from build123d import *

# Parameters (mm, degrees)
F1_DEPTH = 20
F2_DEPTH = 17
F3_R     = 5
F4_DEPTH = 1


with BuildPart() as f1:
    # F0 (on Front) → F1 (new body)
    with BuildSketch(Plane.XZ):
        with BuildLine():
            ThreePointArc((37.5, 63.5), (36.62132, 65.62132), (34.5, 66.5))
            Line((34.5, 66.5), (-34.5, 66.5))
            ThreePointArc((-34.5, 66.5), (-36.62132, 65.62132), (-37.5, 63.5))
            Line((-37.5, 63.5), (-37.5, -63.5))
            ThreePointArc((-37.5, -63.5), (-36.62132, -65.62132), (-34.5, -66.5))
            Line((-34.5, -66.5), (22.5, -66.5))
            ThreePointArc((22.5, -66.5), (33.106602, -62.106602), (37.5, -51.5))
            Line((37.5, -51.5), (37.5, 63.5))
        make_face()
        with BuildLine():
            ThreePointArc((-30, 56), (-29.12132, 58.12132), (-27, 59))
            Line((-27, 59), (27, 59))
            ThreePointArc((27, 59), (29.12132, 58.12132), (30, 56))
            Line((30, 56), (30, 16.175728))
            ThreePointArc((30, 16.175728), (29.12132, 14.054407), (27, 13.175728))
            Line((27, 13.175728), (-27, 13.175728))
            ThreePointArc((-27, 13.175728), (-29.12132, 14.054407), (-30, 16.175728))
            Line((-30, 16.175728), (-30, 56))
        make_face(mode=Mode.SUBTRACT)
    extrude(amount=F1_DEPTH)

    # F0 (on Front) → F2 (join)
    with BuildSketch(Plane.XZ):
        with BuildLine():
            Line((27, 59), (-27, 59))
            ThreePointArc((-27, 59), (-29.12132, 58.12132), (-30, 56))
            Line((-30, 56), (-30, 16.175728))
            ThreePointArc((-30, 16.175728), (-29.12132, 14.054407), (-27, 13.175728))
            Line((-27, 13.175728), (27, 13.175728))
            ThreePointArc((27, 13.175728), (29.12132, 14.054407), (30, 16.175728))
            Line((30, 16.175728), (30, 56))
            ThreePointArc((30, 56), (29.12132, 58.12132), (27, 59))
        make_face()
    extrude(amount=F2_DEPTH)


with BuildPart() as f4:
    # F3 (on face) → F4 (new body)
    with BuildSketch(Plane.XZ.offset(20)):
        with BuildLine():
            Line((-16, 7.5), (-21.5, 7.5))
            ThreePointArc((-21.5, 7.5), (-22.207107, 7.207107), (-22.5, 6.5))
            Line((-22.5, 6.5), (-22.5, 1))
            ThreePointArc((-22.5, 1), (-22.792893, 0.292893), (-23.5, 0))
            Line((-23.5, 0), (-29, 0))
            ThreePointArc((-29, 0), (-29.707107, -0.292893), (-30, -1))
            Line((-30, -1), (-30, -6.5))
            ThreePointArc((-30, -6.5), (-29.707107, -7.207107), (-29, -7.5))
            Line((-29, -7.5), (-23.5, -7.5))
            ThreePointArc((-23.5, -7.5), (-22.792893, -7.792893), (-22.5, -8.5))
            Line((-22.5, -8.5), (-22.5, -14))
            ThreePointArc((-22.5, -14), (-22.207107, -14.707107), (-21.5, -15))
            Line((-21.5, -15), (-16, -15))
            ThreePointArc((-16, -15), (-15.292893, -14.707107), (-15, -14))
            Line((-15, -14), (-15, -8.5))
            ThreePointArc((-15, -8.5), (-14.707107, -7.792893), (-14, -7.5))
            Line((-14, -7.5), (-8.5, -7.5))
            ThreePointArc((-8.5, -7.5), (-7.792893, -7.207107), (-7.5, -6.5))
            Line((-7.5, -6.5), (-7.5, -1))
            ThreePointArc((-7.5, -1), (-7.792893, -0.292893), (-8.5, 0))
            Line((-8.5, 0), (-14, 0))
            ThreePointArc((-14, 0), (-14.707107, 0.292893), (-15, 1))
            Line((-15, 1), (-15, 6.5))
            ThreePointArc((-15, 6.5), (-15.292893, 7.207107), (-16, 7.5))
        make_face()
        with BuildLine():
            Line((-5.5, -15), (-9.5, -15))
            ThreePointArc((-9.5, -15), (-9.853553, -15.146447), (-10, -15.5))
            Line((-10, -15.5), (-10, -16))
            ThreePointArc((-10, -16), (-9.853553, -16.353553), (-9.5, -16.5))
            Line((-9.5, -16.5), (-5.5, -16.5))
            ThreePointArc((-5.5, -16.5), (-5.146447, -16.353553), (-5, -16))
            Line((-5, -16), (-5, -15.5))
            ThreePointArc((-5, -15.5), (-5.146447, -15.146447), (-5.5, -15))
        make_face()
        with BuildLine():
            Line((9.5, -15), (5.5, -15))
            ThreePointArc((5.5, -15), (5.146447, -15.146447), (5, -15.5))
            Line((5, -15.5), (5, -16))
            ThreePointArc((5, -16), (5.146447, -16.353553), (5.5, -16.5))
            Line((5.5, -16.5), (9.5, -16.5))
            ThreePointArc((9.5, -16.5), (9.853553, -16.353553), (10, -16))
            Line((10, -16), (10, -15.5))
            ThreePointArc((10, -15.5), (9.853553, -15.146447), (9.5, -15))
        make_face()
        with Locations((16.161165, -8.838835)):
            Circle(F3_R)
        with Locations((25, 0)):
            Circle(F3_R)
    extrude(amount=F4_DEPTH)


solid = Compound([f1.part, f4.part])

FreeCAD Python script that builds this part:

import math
import FreeCAD as App
import Part
import Sketcher

V = App.Vector
Q = App.Units.Quantity

doc = App.newDocument("Part")
params = doc.addObject("Spreadsheet::Sheet", "Params")
for row, (alias, value) in enumerate([
    ("sketch1_radius", "3.000001 mm"),
    ("sketch1_radius2", "14.999999 mm"),
    ("sketch1_width", "69 mm"),
    ("sketch1_width2", "54 mm"),
    ("sketch1_height", "127 mm"),
    ("pad1_length", "20 mm"),
    ("sketch2_radius", "3.000001 mm"),
    ("sketch2_width", "54 mm"),
    ("pad2_length", "17 mm"),
    ("sketch3_diameter", "10 mm"),
    ("sketch3_radius", "0.999999 mm"),
    ("sketch3_radius2", "0.500001 mm"),
    ("sketch3_width", "4 mm"),
    ("sketch3_width2", "5.5 mm"),
    ("pad3_length", "1 mm"),
], start=1):
    params.set(f"A{row}", alias)
    params.set(f"B{row}", "=" + value)
    params.setAlias(f"B{row}", alias)

body = doc.addObject("PartDesign::Body", "Body")

# Sketch on XZ plane
sketch1 = doc.addObject("Sketcher::SketchObject", "Sketch")
body.addObject(sketch1)
sketch1.AttachmentSupport = (doc.XZ_Plane, [""])
sketch1.MapMode = "FlatFace"
sketch1.addGeometry([
    Part.ArcOfCircle(Part.Circle(V(34.5, 63.5, 0), V(0, 0, 1), 3), math.radians(0), math.radians(90)),  # 0
    Part.LineSegment(V(34.5, 66.5, 0), V(-34.5, 66.5, 0)),  # 1
    Part.ArcOfCircle(Part.Circle(V(-34.5, 63.5, 0), V(0, 0, 1), 3), math.radians(90), math.radians(180)),  # 2
    Part.LineSegment(V(-37.5, 63.5, 0), V(-37.5, -63.5, 0)),  # 3
    Part.ArcOfCircle(Part.Circle(V(-34.5, -63.5, 0), V(0, 0, 1), 3), math.radians(-180), math.radians(-90)),  # 4
    Part.LineSegment(V(-34.5, -66.5, 0), V(22.5, -66.5, 0)),  # 5
    Part.ArcOfCircle(Part.Circle(V(22.5, -51.5, 0), V(0, 0, 1), 15), math.radians(-90), math.radians(0)),  # 6
    Part.LineSegment(V(37.5, -51.5, 0), V(37.5, 63.5, 0)),  # 7
    Part.LineSegment(V(-30, 16.2, 0), V(-30, 56, 0)),  # 8
    Part.ArcOfCircle(Part.Circle(V(-27, 56, 0), V(0, 0, 1), 3), math.radians(90), math.radians(180)),  # 9
    Part.LineSegment(V(-27, 59, 0), V(27, 59, 0)),  # 10
    Part.ArcOfCircle(Part.Circle(V(27, 56, 0), V(0, 0, 1), 3), math.radians(0), math.radians(90)),  # 11
    Part.LineSegment(V(30, 56, 0), V(30, 16.2, 0)),  # 12
    Part.ArcOfCircle(Part.Circle(V(27, 16.2, 0), V(0, 0, 1), 3), math.radians(-90), math.radians(0)),  # 13
    Part.LineSegment(V(27, 13.2, 0), V(-27, 13.2, 0)),  # 14
    Part.ArcOfCircle(Part.Circle(V(-27, 16.2, 0), V(0, 0, 1), 3), math.radians(180), math.radians(270)),  # 15
], False)
sketch1.addConstraint([
    Sketcher.Constraint("Tangent", 0, 2, 1, 1),
    Sketcher.Constraint("Tangent", 1, 2, 2, 1),
    Sketcher.Constraint("Tangent", 2, 2, 3, 1),
    Sketcher.Constraint("Tangent", 3, 2, 4, 1),
    Sketcher.Constraint("Tangent", 4, 2, 5, 1),
    Sketcher.Constraint("Tangent", 5, 2, 6, 1),
    Sketcher.Constraint("Tangent", 6, 2, 7, 1),
    Sketcher.Constraint("Tangent", 7, 2, 0, 1),
    Sketcher.Constraint("Tangent", 8, 2, 9, 2),
    Sketcher.Constraint("Tangent", 9, 1, 10, 1),
    Sketcher.Constraint("Tangent", 10, 2, 11, 2),
    Sketcher.Constraint("Tangent", 11, 1, 12, 1),
    Sketcher.Constraint("Tangent", 12, 2, 13, 2),
    Sketcher.Constraint("Tangent", 13, 1, 14, 1),
    Sketcher.Constraint("Tangent", 14, 2, 15, 2),
    Sketcher.Constraint("Tangent", 15, 1, 8, 1),
    Sketcher.Constraint("Horizontal", 1),
    Sketcher.Constraint("Vertical", 3),
    Sketcher.Constraint("Horizontal", 5),
    Sketcher.Constraint("Vertical", 7),
    Sketcher.Constraint("Vertical", 8),
    Sketcher.Constraint("Horizontal", 10),
    Sketcher.Constraint("Vertical", 12),
    Sketcher.Constraint("Horizontal", 14),
    Sketcher.Constraint("Equal", 0, 2),
    Sketcher.Constraint("Equal", 2, 4),
    Sketcher.Constraint("Equal", 4, 9),
    Sketcher.Constraint("Equal", 9, 11),
    Sketcher.Constraint("Equal", 11, 13),
    Sketcher.Constraint("Equal", 13, 15),
    Sketcher.Constraint("Symmetric", 0, 3, 4, 3, -1, 1),
    Sketcher.Constraint("Radius", 0, Q("3.000001 mm")),
    Sketcher.Constraint("Radius", 6, Q("14.999999 mm")),
    Sketcher.Constraint("DistanceX", 1, 2, 1, 1, Q("69 mm")),
    Sketcher.Constraint("DistanceX", 10, 1, 10, 2, Q("54 mm")),
    Sketcher.Constraint("DistanceY", 3, 2, 3, 1, Q("127 mm")),
    Sketcher.Constraint("DistanceX", 9, 3, -1, 1, Q("26.999999 mm")),
    Sketcher.Constraint("DistanceY", -1, 1, 9, 3, Q("55.999999 mm")),
    Sketcher.Constraint("DistanceY", 8, 1, 8, 2, Q("39.824272 mm")),
])
sketch1.setExpression("Constraints[31]", "Params.sketch1_radius")
sketch1.setExpression("Constraints[32]", "Params.sketch1_radius2")
sketch1.setExpression("Constraints[33]", "Params.sketch1_width")
sketch1.setExpression("Constraints[34]", "Params.sketch1_width2")
sketch1.setExpression("Constraints[35]", "Params.sketch1_height")
pad1 = doc.addObject("PartDesign::Pad", "Pad")
body.addObject(pad1)
pad1.Profile = sketch1
pad1.setExpression("Length", "Params.pad1_length")

# Sketch on XZ plane
sketch2 = doc.addObject("Sketcher::SketchObject", "Sketch001")
body.addObject(sketch2)
sketch2.AttachmentSupport = (doc.XZ_Plane, [""])
sketch2.MapMode = "FlatFace"
sketch2.addGeometry([
    Part.LineSegment(V(27, 59, 0), V(-27, 59, 0)),  # 0
    Part.ArcOfCircle(Part.Circle(V(-27, 56, 0), V(0, 0, 1), 3), math.radians(90), math.radians(180)),  # 1
    Part.LineSegment(V(-30, 56, 0), V(-30, 16.2, 0)),  # 2
    Part.ArcOfCircle(Part.Circle(V(-27, 16.2, 0), V(0, 0, 1), 3), math.radians(180), math.radians(270)),  # 3
    Part.LineSegment(V(-27, 13.2, 0), V(27, 13.2, 0)),  # 4
    Part.ArcOfCircle(Part.Circle(V(27, 16.2, 0), V(0, 0, 1), 3), math.radians(-90), math.radians(0)),  # 5
    Part.LineSegment(V(30, 16.2, 0), V(30, 56, 0)),  # 6
    Part.ArcOfCircle(Part.Circle(V(27, 56, 0), V(0, 0, 1), 3), math.radians(0), math.radians(90)),  # 7
], False)
sketch2.addConstraint([
    Sketcher.Constraint("Tangent", 0, 2, 1, 1),
    Sketcher.Constraint("Tangent", 1, 2, 2, 1),
    Sketcher.Constraint("Tangent", 2, 2, 3, 1),
    Sketcher.Constraint("Tangent", 3, 2, 4, 1),
    Sketcher.Constraint("Tangent", 4, 2, 5, 1),
    Sketcher.Constraint("Tangent", 5, 2, 6, 1),
    Sketcher.Constraint("Tangent", 6, 2, 7, 1),
    Sketcher.Constraint("Tangent", 7, 2, 0, 1),
    Sketcher.Constraint("Horizontal", 0),
    Sketcher.Constraint("Vertical", 2),
    Sketcher.Constraint("Horizontal", 4),
    Sketcher.Constraint("Vertical", 6),
    Sketcher.Constraint("Equal", 1, 3),
    Sketcher.Constraint("Equal", 3, 5),
    Sketcher.Constraint("Equal", 5, 7),
    Sketcher.Constraint("Radius", 1, Q("3.000001 mm")),
    Sketcher.Constraint("DistanceX", 0, 2, 0, 1, Q("54 mm")),
    Sketcher.Constraint("DistanceX", 1, 3, -1, 1, Q("26.999999 mm")),
    Sketcher.Constraint("DistanceY", -1, 1, 1, 3, Q("55.999999 mm")),
    Sketcher.Constraint("DistanceY", 2, 2, 2, 1, Q("39.824272 mm")),
])
sketch2.setExpression("Constraints[15]", "Params.sketch2_radius")
sketch2.setExpression("Constraints[16]", "Params.sketch2_width")
pad2 = doc.addObject("PartDesign::Pad", "Pad001")
body.addObject(pad2)
pad2.Profile = sketch2
pad2.setExpression("Length", "Params.pad2_length")
body2 = doc.addObject("PartDesign::Body", "Body001")
body2.AllowCompound = True

# Sketch on XZ plane
sketch3 = doc.addObject("Sketcher::SketchObject", "Sketch002")
body2.addObject(sketch3)
sketch3.AttachmentSupport = (doc.getObject("XZ_Plane001"), [""])
sketch3.MapMode = "FlatFace"
sketch3.AttachmentOffset = App.Placement(V(0, 0, 20), App.Rotation())
sketch3.addGeometry([
    Part.LineSegment(V(-16, 7.5, 0), V(-21.5, 7.5, 0)),  # 0
    Part.ArcOfCircle(Part.Circle(V(-21.5, 6.5, 0), V(0, 0, 1), 1), math.radians(90), math.radians(180)),  # 1
    Part.LineSegment(V(-22.5, 6.5, 0), V(-22.5, 1, 0)),  # 2
    Part.ArcOfCircle(Part.Circle(V(-23.5, 1, 0), V(0, 0, 1), 1), math.radians(-90), math.radians(0)),  # 3
    Part.LineSegment(V(-23.5, 0, 0), V(-29, 0, 0)),  # 4
    Part.ArcOfCircle(Part.Circle(V(-29, -1, 0), V(0, 0, 1), 1), math.radians(90), math.radians(180)),  # 5
    Part.LineSegment(V(-30, -1, 0), V(-30, -6.5, 0)),  # 6
    Part.ArcOfCircle(Part.Circle(V(-29, -6.5, 0), V(0, 0, 1), 1), math.radians(180), math.radians(270)),  # 7
    Part.LineSegment(V(-29, -7.5, 0), V(-23.5, -7.5, 0)),  # 8
    Part.ArcOfCircle(Part.Circle(V(-23.5, -8.5, 0), V(0, 0, 1), 1), math.radians(0), math.radians(90)),  # 9
    Part.LineSegment(V(-22.5, -8.5, 0), V(-22.5, -14, 0)),  # 10
    Part.ArcOfCircle(Part.Circle(V(-21.5, -14, 0), V(0, 0, 1), 1), math.radians(180), math.radians(270)),  # 11
    Part.LineSegment(V(-21.5, -15, 0), V(-16, -15, 0)),  # 12
    Part.ArcOfCircle(Part.Circle(V(-16, -14, 0), V(0, 0, 1), 1), math.radians(-90), math.radians(0)),  # 13
    Part.LineSegment(V(-15, -14, 0), V(-15, -8.5, 0)),  # 14
    Part.ArcOfCircle(Part.Circle(V(-14, -8.5, 0), V(0, 0, 1), 1), math.radians(90), math.radians(180)),  # 15
    Part.LineSegment(V(-14, -7.5, 0), V(-8.5, -7.5, 0)),  # 16
    Part.ArcOfCircle(Part.Circle(V(-8.5, -6.5, 0), V(0, 0, 1), 1), math.radians(-90), math.radians(0)),  # 17
    Part.LineSegment(V(-7.5, -6.5, 0), V(-7.5, -1, 0)),  # 18
    Part.ArcOfCircle(Part.Circle(V(-8.5, -1, 0), V(0, 0, 1), 1), math.radians(0), math.radians(90)),  # 19
    Part.LineSegment(V(-8.5, 0, 0), V(-14, 0, 0)),  # 20
    Part.ArcOfCircle(Part.Circle(V(-14, 1, 0), V(0, 0, 1), 1), math.radians(180), math.radians(270)),  # 21
    Part.LineSegment(V(-15, 1, 0), V(-15, 6.5, 0)),  # 22
    Part.ArcOfCircle(Part.Circle(V(-16, 6.5, 0), V(0, 0, 1), 1), math.radians(0), math.radians(90)),  # 23
    Part.LineSegment(V(-5.5, -15, 0), V(-9.5, -15, 0)),  # 24
    Part.ArcOfCircle(Part.Circle(V(-9.5, -15.5, 0), V(0, 0, 1), 0.5), math.radians(90), math.radians(180)),  # 25
    Part.LineSegment(V(-10, -15.5, 0), V(-10, -16, 0)),  # 26
    Part.ArcOfCircle(Part.Circle(V(-9.5, -16, 0), V(0, 0, 1), 0.5), math.radians(-180), math.radians(-90)),  # 27
    Part.LineSegment(V(-9.5, -16.5, 0), V(-5.5, -16.5, 0)),  # 28
    Part.ArcOfCircle(Part.Circle(V(-5.5, -16, 0), V(0, 0, 1), 0.5), math.radians(-90), math.radians(0)),  # 29
    Part.LineSegment(V(-5, -16, 0), V(-5, -15.5, 0)),  # 30
    Part.ArcOfCircle(Part.Circle(V(-5.5, -15.5, 0), V(0, 0, 1), 0.5), math.radians(0), math.radians(90)),  # 31
    Part.LineSegment(V(9.5, -15, 0), V(5.5, -15, 0)),  # 32
    Part.ArcOfCircle(Part.Circle(V(5.5, -15.5, 0), V(0, 0, 1), 0.5), math.radians(90), math.radians(180)),  # 33
    Part.LineSegment(V(5, -15.5, 0), V(5, -16, 0)),  # 34
    Part.ArcOfCircle(Part.Circle(V(5.5, -16, 0), V(0, 0, 1), 0.5), math.radians(-180), math.radians(-90)),  # 35
    Part.LineSegment(V(5.5, -16.5, 0), V(9.5, -16.5, 0)),  # 36
    Part.ArcOfCircle(Part.Circle(V(9.5, -16, 0), V(0, 0, 1), 0.5), math.radians(-90), math.radians(0)),  # 37
    Part.LineSegment(V(10, -16, 0), V(10, -15.5, 0)),  # 38
    Part.ArcOfCircle(Part.Circle(V(9.5, -15.5, 0), V(0, 0, 1), 0.5), math.radians(0), math.radians(90)),  # 39
    Part.Circle(V(16.2, -8.8, 0), V(0, 0, 1), 5),  # 40
    Part.Circle(V(25, 0, 0), V(0, 0, 1), 5),  # 41
], False)
sketch3.addConstraint([
    Sketcher.Constraint("Tangent", 0, 2, 1, 1),
    Sketcher.Constraint("Tangent", 1, 2, 2, 1),
    Sketcher.Constraint("Tangent", 2, 2, 3, 2),
    Sketcher.Constraint("Tangent", 3, 1, 4, 1),
    Sketcher.Constraint("Tangent", 4, 2, 5, 1),
    Sketcher.Constraint("Tangent", 5, 2, 6, 1),
    Sketcher.Constraint("Tangent", 6, 2, 7, 1),
    Sketcher.Constraint("Tangent", 7, 2, 8, 1),
    Sketcher.Constraint("Tangent", 8, 2, 9, 2),
    Sketcher.Constraint("Tangent", 9, 1, 10, 1),
    Sketcher.Constraint("Tangent", 10, 2, 11, 1),
    Sketcher.Constraint("Tangent", 11, 2, 12, 1),
    Sketcher.Constraint("Tangent", 12, 2, 13, 1),
    Sketcher.Constraint("Tangent", 13, 2, 14, 1),
    Sketcher.Constraint("Tangent", 14, 2, 15, 2),
    Sketcher.Constraint("Tangent", 15, 1, 16, 1),
    Sketcher.Constraint("Tangent", 16, 2, 17, 1),
    Sketcher.Constraint("Tangent", 17, 2, 18, 1),
    Sketcher.Constraint("Tangent", 18, 2, 19, 1),
    Sketcher.Constraint("Tangent", 19, 2, 20, 1),
    Sketcher.Constraint("Tangent", 20, 2, 21, 2),
    Sketcher.Constraint("Tangent", 21, 1, 22, 1),
    Sketcher.Constraint("Tangent", 22, 2, 23, 1),
    Sketcher.Constraint("Tangent", 23, 2, 0, 1),
    Sketcher.Constraint("Coincident", 24, 2, 25, 1),
    Sketcher.Constraint("Coincident", 25, 2, 26, 1),
    Sketcher.Constraint("Coincident", 26, 2, 27, 1),
    Sketcher.Constraint("Coincident", 27, 2, 28, 1),
    Sketcher.Constraint("Coincident", 28, 2, 29, 1),
    Sketcher.Constraint("Coincident", 29, 2, 30, 1),
    Sketcher.Constraint("Coincident", 30, 2, 31, 1),
    Sketcher.Constraint("Coincident", 31, 2, 24, 1),
    Sketcher.Constraint("Coincident", 32, 2, 33, 1),
    Sketcher.Constraint("Coincident", 33, 2, 34, 1),
    Sketcher.Constraint("Coincident", 34, 2, 35, 1),
    Sketcher.Constraint("Coincident", 35, 2, 36, 1),
    Sketcher.Constraint("Coincident", 36, 2, 37, 1),
    Sketcher.Constraint("Coincident", 37, 2, 38, 1),
    Sketcher.Constraint("Coincident", 38, 2, 39, 1),
    Sketcher.Constraint("Coincident", 39, 2, 32, 1),
    Sketcher.Constraint("Horizontal", 0),
    Sketcher.Constraint("Vertical", 2),
    Sketcher.Constraint("Horizontal", 4),
    Sketcher.Constraint("Vertical", 6),
    Sketcher.Constraint("Horizontal", 8),
    Sketcher.Constraint("Vertical", 10),
    Sketcher.Constraint("Horizontal", 12),
    Sketcher.Constraint("Vertical", 14),
    Sketcher.Constraint("Horizontal", 16),
    Sketcher.Constraint("Vertical", 18),
    Sketcher.Constraint("Horizontal", 20),
    Sketcher.Constraint("Vertical", 22),
    Sketcher.Constraint("Horizontal", 24),
    Sketcher.Constraint("Vertical", 26),
    Sketcher.Constraint("Horizontal", 28),
    Sketcher.Constraint("Vertical", 30),
    Sketcher.Constraint("Horizontal", 32),
    Sketcher.Constraint("Vertical", 34),
    Sketcher.Constraint("Horizontal", 36),
    Sketcher.Constraint("Vertical", 38),
    Sketcher.Constraint("Equal", 1, 3),
    Sketcher.Constraint("Equal", 3, 5),
    Sketcher.Constraint("Equal", 5, 7),
    Sketcher.Constraint("Equal", 7, 9),
    Sketcher.Constraint("Equal", 9, 11),
    Sketcher.Constraint("Equal", 11, 13),
    Sketcher.Constraint("Equal", 13, 15),
    Sketcher.Constraint("Equal", 15, 17),
    Sketcher.Constraint("Equal", 17, 19),
    Sketcher.Constraint("Equal", 19, 21),
    Sketcher.Constraint("Equal", 21, 23),
    Sketcher.Constraint("Equal", 25, 27),
    Sketcher.Constraint("Equal", 27, 29),
    Sketcher.Constraint("Equal", 29, 31),
    Sketcher.Constraint("Equal", 31, 33),
    Sketcher.Constraint("Equal", 33, 35),
    Sketcher.Constraint("Equal", 35, 37),
    Sketcher.Constraint("Equal", 37, 39),
    Sketcher.Constraint("Equal", 40, 41),
    Sketcher.Constraint("Symmetric", 31, 3, 33, 3, -2),
    Sketcher.Constraint("Symmetric", 27, 3, 37, 3, -2),
    Sketcher.Constraint("PointOnObject", 41, 3, -1),
    Sketcher.Constraint("PointOnObject", 3, 1, -1),
    Sketcher.Constraint("PointOnObject", 19, 2, -1),
    Sketcher.Constraint("Horizontal", 9, 3, 15, 3),
    Sketcher.Constraint("Horizontal", 12, 2, 24, 2),
    Sketcher.Constraint("Horizontal", 39, 3, 25, 2),
    Sketcher.Constraint("Horizontal", 37, 3, 26, 2),
    Sketcher.Constraint("Horizontal", 26, 2, 29, 2),
    Sketcher.Constraint("Horizontal", 25, 2, 30, 2),
    Sketcher.Constraint("Horizontal", 30, 2, 33, 2),
    Sketcher.Constraint("Horizontal", 29, 2, 34, 2),
    Sketcher.Constraint("Horizontal", 34, 2, 37, 2),
    Sketcher.Constraint("Horizontal", 33, 2, 38, 2),
    Sketcher.Constraint("Vertical", 3, 3, 9, 3),
    Sketcher.Constraint("Vertical", 15, 3, 21, 3),
    Sketcher.Constraint("Vertical", 27, 3, 24, 2),
    Sketcher.Constraint("Vertical", 24, 2, 27, 2),
    Sketcher.Constraint("Vertical", 31, 3, 28, 2),
    Sketcher.Constraint("Vertical", 28, 2, 31, 2),
    Sketcher.Constraint("Vertical", 35, 3, 32, 2),
    Sketcher.Constraint("Vertical", 32, 2, 35, 2),
    Sketcher.Constraint("Vertical", 39, 3, 36, 2),
    Sketcher.Constraint("Vertical", 36, 2, 39, 2),
    Sketcher.Constraint("Equal", 0, 4),
    Sketcher.Constraint("Equal", 12, 16),
    Sketcher.Constraint("Equal", 20, 2),
    Sketcher.Constraint("Equal", 2, 6),
    Sketcher.Constraint("Equal", 6, 10),
    Sketcher.Constraint("Diameter", 40, Q("10 mm")),
    Sketcher.Constraint("Radius", 1, Q("0.999999 mm")),
    Sketcher.Constraint("Radius", 25, Q("0.500001 mm")),
    Sketcher.Constraint("DistanceX", 24, 2, 24, 1, Q("4 mm")),
    Sketcher.Constraint("DistanceX", 0, 2, 0, 1, Q("5.5 mm")),
    Sketcher.Constraint("DistanceY", 26, 2, 26, 1, Q("0.5 mm")),
    Sketcher.Constraint("DistanceX", 5, 3, -1, 1, Q("29.000001 mm")),
    Sketcher.Constraint("DistanceX", -1, 1, 41, 3, Q("25 mm")),
    Sketcher.Constraint("DistanceX", 25, 2, -1, 1, Q("10 mm")),
    Sketcher.Constraint("DistanceX", -1, 1, 40, 3, Q("16.161165 mm")),
    Sketcher.Constraint("DistanceY", 40, 3, -1, 1, Q("8.838835 mm")),
])
sketch3.setExpression("Constraints[109]", "Params.sketch3_diameter")
sketch3.setExpression("Constraints[110]", "Params.sketch3_radius")
sketch3.setExpression("Constraints[111]", "Params.sketch3_radius2")
sketch3.setExpression("Constraints[112]", "Params.sketch3_width")
sketch3.setExpression("Constraints[113]", "Params.sketch3_width2")
pad3 = doc.addObject("PartDesign::Pad", "Pad002")
body2.addObject(pad3)
pad3.Profile = sketch3
pad3.setExpression("Length", "Params.pad3_length")

doc.recompute()
